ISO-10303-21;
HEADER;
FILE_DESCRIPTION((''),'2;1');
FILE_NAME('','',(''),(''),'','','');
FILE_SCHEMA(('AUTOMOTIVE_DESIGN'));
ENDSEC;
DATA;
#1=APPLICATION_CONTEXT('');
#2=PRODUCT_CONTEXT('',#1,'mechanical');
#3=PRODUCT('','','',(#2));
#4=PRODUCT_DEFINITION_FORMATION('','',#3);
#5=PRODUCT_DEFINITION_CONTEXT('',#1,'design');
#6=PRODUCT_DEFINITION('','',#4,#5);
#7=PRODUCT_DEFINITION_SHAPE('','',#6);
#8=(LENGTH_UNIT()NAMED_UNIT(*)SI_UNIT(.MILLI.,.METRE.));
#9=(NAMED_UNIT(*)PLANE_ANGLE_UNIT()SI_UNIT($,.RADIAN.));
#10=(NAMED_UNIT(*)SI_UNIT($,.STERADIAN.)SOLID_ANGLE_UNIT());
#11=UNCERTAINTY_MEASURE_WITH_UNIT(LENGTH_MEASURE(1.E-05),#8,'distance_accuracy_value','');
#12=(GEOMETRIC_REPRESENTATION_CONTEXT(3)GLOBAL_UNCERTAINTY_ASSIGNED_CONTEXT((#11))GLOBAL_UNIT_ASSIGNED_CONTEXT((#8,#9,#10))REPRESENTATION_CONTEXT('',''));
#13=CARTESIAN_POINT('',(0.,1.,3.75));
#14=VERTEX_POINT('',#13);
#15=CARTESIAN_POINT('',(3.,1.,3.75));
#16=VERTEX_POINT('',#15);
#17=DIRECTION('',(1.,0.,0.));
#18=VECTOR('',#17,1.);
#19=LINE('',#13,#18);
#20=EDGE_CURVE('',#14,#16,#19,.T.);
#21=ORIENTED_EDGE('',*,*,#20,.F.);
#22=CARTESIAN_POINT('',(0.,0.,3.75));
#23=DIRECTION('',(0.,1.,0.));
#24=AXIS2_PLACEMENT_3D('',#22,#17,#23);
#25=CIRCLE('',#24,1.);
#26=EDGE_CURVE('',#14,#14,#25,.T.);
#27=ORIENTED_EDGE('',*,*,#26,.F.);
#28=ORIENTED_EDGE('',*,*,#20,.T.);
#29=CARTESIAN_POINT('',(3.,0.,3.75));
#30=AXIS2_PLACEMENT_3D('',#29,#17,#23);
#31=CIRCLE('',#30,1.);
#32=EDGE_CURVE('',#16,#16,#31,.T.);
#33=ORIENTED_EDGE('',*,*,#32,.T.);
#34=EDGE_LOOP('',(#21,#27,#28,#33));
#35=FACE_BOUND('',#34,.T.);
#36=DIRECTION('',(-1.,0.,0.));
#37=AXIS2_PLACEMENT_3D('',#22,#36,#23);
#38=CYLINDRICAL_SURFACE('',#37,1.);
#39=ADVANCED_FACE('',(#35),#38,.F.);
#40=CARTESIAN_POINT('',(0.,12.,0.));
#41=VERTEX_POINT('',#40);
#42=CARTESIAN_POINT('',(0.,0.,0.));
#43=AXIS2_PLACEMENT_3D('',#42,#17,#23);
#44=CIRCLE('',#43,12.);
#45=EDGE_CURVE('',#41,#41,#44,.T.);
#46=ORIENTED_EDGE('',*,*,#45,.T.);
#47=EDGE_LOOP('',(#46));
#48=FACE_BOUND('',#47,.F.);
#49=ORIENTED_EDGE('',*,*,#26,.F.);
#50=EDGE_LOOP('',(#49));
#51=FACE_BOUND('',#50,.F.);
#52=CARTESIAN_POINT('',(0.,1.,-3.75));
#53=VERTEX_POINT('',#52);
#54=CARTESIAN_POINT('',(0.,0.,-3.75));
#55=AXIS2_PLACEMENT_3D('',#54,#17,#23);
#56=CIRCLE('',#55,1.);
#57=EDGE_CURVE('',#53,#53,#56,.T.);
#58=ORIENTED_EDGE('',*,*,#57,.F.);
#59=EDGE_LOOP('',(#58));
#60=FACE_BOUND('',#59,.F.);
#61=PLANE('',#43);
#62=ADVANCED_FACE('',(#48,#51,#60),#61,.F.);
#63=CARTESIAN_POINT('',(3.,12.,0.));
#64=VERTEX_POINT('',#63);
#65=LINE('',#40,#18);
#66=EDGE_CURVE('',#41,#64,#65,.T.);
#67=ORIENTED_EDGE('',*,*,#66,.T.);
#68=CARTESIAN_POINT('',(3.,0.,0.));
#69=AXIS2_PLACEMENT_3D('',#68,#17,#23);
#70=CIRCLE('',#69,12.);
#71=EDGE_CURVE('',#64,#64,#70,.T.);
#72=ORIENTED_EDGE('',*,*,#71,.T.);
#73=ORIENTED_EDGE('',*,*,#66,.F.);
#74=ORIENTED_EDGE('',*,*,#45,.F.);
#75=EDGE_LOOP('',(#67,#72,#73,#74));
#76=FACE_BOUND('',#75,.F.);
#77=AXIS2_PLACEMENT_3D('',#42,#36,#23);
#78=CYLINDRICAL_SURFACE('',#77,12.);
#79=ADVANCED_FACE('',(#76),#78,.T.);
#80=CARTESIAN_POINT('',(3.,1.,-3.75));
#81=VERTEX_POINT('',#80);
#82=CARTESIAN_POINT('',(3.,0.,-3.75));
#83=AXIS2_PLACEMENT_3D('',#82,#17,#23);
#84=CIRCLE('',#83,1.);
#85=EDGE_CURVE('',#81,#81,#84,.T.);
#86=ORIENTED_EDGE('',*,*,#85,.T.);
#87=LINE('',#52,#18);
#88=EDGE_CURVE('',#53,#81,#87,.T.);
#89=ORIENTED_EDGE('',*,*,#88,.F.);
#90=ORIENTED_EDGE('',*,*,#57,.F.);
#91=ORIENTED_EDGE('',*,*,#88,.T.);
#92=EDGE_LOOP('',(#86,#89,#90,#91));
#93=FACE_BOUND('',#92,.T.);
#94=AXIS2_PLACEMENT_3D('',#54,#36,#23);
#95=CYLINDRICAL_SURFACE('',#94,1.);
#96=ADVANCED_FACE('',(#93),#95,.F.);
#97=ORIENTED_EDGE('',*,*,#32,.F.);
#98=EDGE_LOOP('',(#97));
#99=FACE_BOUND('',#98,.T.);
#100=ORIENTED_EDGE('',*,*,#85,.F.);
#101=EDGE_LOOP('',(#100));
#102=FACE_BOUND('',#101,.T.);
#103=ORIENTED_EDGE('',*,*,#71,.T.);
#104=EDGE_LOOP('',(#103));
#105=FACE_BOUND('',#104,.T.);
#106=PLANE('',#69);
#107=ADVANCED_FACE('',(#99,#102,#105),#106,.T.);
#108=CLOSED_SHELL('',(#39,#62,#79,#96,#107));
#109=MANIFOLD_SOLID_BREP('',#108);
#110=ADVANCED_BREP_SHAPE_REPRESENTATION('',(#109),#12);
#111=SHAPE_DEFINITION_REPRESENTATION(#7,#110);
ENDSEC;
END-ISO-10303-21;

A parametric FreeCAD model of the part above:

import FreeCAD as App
import Part
import Sketcher
from FreeCAD import Vector
Q = App.Units.Quantity

doc = App.newDocument("Part")
body = doc.addObject("PartDesign::Body", "Body")

# Sketch on YZ plane
sketch1 = body.newObject("Sketcher::SketchObject", "Sketch")
sketch1.AttachmentSupport = (doc.getObject("YZ_Plane"), [""])
sketch1.MapMode = "FlatFace"
sketch1.addGeometry(Part.Circle(Vector(0, 0, 0), Vector(0, 0, 1), 12), False)
sketch1.addGeometry(Part.Circle(Vector(0, -3.75, 0), Vector(0, 0, 1), 1), False)
sketch1.addGeometry(Part.Circle(Vector(0, 3.75, 0), Vector(0, 0, 1), 1), False)
sketch1.addConstraint(Sketcher.Constraint("Coincident", 0, 3, -1, 1))
sketch1.addConstraint(Sketcher.Constraint("Equal", 1, 2))
sketch1.addConstraint(Sketcher.Constraint("Symmetric", 1, 3, 2, 3, -1, 1))
sketch1.addConstraint(Sketcher.Constraint("PointOnObject", 1, 3, -2))
sketch1.addConstraint(Sketcher.Constraint("Diameter", 0, Q("24 mm")))
sketch1.addConstraint(Sketcher.Constraint("Diameter", 1, Q("2 mm")))
sketch1.addConstraint(Sketcher.Constraint("DistanceY", 1, 3, -1, 1, Q("3.75 mm")))
pad1 = body.newObject("PartDesign::Pad", "Pad")
pad1.Profile = sketch1
pad1.Length = 3

doc.recompute()
